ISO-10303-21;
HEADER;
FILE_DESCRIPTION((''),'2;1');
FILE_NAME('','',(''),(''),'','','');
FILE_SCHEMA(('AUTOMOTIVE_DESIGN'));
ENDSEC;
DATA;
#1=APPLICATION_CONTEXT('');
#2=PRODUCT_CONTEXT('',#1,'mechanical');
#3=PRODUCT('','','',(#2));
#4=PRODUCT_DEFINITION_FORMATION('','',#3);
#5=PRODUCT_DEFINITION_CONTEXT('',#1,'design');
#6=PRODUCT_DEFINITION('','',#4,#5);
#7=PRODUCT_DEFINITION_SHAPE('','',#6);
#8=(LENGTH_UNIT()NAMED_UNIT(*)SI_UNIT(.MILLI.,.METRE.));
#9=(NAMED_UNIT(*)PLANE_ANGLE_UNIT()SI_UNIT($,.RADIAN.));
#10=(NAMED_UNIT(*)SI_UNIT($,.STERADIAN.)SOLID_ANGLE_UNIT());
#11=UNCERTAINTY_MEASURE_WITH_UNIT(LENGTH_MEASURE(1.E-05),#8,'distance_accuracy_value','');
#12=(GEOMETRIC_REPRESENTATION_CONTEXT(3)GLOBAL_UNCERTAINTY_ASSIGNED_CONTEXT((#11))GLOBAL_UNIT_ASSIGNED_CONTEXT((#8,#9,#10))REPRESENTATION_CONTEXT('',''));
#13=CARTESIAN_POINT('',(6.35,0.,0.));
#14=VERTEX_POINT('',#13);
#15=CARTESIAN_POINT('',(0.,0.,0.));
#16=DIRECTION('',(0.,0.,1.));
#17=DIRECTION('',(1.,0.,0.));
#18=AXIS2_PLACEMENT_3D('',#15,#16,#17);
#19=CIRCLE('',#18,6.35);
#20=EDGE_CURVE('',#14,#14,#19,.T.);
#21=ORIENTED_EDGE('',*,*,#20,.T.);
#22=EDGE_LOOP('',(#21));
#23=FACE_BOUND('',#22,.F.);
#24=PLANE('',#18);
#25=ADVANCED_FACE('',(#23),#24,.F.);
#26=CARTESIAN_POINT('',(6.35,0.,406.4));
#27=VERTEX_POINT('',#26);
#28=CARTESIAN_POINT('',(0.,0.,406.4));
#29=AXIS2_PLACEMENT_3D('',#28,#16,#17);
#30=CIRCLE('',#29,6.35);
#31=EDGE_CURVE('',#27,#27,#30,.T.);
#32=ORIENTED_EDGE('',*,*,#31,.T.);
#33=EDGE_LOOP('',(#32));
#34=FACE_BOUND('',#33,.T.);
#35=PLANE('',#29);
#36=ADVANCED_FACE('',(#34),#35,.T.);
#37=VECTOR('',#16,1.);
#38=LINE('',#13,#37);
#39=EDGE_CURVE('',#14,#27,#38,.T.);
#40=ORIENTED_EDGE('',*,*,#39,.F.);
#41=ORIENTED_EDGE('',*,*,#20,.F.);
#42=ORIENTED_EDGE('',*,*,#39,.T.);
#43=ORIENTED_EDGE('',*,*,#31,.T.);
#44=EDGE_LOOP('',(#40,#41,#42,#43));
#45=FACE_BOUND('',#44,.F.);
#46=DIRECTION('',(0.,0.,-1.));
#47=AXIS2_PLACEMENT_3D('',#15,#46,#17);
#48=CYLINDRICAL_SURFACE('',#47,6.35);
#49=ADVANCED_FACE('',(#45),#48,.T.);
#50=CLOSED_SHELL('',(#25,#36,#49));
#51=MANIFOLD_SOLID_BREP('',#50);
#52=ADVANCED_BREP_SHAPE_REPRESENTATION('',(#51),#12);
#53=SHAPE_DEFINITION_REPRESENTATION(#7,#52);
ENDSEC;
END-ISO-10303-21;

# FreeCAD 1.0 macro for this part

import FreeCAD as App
import Part
import Sketcher
Q = App.Units.Quantity

doc = App.newDocument("Part")
body = doc.addObject("PartDesign::Body", "Body")

sketch1 = body.newObject("Sketcher::SketchObject", "Sketch")
sketch1.AttachmentSupport = (doc.getObject("XY_Plane"), [""])
sketch1.MapMode = "FlatFace"
sketch1.addGeometry(Part.Circle(App.Vector(0, 0, 0), App.Vector(0, 0, 1), 6), False)
sketch1.addConstraint(Sketcher.Constraint("Coincident", 0, 3, -1, 1))
sketch1.addConstraint(Sketcher.Constraint("Diameter", 0, Q("0.5 in")))
pad1 = body.newObject("PartDesign::Pad", "Pad")
pad1.Profile = sketch1
pad1.Length = Q("16 in")

doc.recompute()
